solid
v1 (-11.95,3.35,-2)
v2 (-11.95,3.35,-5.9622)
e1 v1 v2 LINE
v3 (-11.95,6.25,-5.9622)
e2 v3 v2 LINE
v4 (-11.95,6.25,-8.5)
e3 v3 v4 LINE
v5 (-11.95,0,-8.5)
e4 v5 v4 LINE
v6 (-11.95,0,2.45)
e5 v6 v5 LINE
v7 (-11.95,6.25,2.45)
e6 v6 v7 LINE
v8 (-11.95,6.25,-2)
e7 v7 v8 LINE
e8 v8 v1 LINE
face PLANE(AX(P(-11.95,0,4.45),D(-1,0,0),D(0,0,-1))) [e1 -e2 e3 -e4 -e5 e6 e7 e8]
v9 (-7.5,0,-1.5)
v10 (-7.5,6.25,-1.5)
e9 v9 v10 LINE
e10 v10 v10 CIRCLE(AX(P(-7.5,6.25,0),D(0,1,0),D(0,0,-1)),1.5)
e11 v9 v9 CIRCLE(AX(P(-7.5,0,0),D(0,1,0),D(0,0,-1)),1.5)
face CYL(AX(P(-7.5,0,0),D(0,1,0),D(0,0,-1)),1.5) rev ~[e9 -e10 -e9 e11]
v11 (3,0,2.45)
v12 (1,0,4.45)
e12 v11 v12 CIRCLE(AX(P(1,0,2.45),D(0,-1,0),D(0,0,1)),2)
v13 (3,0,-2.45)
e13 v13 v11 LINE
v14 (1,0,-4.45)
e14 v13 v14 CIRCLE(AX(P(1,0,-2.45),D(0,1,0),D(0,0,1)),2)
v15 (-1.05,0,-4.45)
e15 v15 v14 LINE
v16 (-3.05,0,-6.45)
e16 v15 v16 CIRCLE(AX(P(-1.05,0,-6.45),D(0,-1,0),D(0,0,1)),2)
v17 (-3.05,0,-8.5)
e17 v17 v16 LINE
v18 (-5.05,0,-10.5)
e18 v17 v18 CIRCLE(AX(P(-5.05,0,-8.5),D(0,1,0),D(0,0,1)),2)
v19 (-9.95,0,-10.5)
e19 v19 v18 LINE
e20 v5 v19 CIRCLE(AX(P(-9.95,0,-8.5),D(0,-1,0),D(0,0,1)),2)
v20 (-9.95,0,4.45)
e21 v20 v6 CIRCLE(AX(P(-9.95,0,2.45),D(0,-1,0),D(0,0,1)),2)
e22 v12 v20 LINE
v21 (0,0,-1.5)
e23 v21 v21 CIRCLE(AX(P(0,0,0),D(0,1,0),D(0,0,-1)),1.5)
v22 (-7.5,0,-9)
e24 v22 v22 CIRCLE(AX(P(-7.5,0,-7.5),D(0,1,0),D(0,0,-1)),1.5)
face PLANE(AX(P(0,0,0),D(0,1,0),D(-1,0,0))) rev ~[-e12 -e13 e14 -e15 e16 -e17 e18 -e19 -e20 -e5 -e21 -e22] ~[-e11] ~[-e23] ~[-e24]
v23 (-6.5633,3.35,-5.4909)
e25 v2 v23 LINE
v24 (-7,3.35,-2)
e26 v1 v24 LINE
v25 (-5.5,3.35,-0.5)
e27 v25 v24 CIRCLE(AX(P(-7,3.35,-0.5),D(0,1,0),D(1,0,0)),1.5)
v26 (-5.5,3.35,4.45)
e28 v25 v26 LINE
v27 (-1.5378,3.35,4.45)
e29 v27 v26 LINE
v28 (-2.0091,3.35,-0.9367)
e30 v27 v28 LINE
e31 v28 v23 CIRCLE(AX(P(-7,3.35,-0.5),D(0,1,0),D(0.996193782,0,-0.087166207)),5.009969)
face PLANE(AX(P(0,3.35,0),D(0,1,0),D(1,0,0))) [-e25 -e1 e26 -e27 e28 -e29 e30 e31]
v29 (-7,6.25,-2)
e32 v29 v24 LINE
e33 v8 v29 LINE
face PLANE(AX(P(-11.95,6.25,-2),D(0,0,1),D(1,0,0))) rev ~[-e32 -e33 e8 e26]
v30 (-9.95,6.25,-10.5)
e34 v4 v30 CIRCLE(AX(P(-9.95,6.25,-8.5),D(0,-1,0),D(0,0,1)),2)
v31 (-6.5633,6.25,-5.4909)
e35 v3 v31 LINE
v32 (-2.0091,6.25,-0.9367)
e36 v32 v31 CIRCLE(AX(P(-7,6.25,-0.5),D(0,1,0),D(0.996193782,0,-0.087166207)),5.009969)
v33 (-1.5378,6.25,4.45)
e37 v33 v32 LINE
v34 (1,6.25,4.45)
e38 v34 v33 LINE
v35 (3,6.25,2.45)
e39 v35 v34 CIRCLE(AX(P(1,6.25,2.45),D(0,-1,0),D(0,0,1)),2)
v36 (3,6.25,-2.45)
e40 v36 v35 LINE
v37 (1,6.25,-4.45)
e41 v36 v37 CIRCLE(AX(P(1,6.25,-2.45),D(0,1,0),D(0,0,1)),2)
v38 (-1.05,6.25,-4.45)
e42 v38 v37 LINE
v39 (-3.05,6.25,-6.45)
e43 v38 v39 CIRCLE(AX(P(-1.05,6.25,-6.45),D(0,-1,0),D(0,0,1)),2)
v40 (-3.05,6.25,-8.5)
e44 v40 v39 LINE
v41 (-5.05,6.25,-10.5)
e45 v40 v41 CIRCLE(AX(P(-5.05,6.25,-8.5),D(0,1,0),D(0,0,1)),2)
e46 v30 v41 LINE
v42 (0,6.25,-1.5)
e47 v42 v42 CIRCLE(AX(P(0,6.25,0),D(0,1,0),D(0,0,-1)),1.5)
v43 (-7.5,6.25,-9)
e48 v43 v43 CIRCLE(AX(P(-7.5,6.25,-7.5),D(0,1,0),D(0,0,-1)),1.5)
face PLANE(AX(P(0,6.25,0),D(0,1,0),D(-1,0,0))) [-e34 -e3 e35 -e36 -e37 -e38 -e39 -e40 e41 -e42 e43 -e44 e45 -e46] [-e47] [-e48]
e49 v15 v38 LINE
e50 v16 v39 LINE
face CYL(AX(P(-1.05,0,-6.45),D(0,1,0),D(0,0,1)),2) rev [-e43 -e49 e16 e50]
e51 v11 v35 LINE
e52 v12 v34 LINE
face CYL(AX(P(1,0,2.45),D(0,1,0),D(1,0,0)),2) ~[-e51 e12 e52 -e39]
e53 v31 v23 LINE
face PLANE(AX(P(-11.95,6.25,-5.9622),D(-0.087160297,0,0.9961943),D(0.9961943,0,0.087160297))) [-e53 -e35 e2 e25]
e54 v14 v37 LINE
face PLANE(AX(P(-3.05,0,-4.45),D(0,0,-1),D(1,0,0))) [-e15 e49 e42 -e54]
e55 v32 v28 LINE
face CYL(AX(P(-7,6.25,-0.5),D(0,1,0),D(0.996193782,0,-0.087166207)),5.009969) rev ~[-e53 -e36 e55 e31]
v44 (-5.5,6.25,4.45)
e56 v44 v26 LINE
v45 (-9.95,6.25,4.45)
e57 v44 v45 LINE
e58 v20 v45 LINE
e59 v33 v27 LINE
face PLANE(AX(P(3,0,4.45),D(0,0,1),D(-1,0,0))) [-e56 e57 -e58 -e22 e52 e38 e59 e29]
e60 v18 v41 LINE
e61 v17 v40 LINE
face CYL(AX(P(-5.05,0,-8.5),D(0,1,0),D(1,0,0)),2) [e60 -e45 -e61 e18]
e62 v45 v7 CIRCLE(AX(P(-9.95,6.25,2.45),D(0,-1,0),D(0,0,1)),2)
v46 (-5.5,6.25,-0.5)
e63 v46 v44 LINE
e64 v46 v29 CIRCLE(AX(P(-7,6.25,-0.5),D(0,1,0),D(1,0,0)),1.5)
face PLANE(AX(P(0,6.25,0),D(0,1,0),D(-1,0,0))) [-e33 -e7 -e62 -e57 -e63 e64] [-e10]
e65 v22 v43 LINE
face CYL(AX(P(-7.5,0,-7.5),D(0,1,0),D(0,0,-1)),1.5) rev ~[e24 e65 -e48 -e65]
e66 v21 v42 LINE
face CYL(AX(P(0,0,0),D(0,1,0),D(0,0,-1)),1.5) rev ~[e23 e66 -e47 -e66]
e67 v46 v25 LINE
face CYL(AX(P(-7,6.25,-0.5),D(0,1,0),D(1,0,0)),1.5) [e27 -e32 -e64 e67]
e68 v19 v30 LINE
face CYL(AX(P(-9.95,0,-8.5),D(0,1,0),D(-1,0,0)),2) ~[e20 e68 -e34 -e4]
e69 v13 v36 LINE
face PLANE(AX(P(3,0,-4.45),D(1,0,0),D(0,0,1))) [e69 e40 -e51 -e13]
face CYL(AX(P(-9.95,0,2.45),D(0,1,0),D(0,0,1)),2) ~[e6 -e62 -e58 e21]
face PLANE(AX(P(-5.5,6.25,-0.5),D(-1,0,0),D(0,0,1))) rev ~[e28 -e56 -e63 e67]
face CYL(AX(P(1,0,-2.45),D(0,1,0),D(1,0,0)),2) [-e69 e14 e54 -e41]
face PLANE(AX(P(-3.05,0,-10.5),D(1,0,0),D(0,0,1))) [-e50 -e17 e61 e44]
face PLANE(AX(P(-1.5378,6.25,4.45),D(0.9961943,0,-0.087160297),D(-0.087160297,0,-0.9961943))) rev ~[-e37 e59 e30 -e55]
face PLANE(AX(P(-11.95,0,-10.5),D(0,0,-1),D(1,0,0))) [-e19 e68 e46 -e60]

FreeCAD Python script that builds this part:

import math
import FreeCAD as App
import Part
import Sketcher

V = App.Vector
Q = App.Units.Quantity


def edges_at(feature, points):
    """Names of the edges that pass closest to the given points."""
    edges = feature.Shape.Edges
    near = lambda p: min(range(len(edges)), key=lambda i: edges[i].distToShape(Part.Vertex(*p))[0])
    return sorted({f"Edge{near(p) + 1}" for p in points})


def add_polygon(sketch, points):
    """Adds a closed chain of lines whose ends are joined by coincident constraints."""
    first, n = sketch.GeometryCount, len(points)
    for a, b in zip(points, points[1:] + points[:1]):
        sketch.addGeometry(Part.LineSegment(App.Vector(*a, 0), App.Vector(*b, 0)), False)
    for i in range(n):
        sketch.addConstraint(Sketcher.Constraint("Coincident", first + i, 2, first + (i + 1) % n, 1))

doc = App.newDocument("Part")
params = doc.addObject("Spreadsheet::Sheet", "Params")
for row, (alias, value) in enumerate([
    ("sketch1_width", "8.9 mm"),
    ("sketch1_width2", "6.05 mm"),
    ("pad1_length", "6.25 mm"),
    ("sketch2_diameter", "3 mm"),
    ("hole_diameter", "3 mm"),
    ("sketch3_radius", "1.5 mm"),
    ("sketch3_radius2", "5.01 mm"),
    ("sketch3_width", "4.95 mm"),
    ("pocket1_length", "2.9 mm"),
    ("fillet_radius", "2 mm"),
], start=1):
    params.set(f"A{row}", alias)
    params.set(f"B{row}", "=" + value)
    params.setAlias(f"B{row}", alias)

body = doc.addObject("PartDesign::Body", "Body")

sketch1 = doc.addObject("Sketcher::SketchObject", "Sketch")
body.addObject(sketch1)
sketch1.AttachmentSupport = (doc.XZ_Plane, [""])
sketch1.MapMode = "FlatFace"
add_polygon(sketch1, [(3, 4.45), (3, -4.45), (-3.05, -4.45), (-3.05, -10.5), (-11.95, -10.5), (-11.95, 4.45)])
sketch1.addConstraint([
    Sketcher.Constraint("Vertical", 0),
    Sketcher.Constraint("Horizontal", 1),
    Sketcher.Constraint("Vertical", 2),
    Sketcher.Constraint("Horizontal", 3),
    Sketcher.Constraint("Vertical", 4),
    Sketcher.Constraint("Horizontal", 5),
    Sketcher.Constraint("Equal", 3, 0),
    Sketcher.Constraint("Equal", 1, 2),
    Sketcher.Constraint("DistanceX", 3, 2, 3, 1, 8.9),
    Sketcher.Constraint("DistanceX", -1, 1, 0, 2, 3.0),
    Sketcher.Constraint("DistanceX", 1, 2, 1, 1, 6.05),
    Sketcher.Constraint("DistanceY", 2, 2, -1, 1, 10.5),
])
sketch1.setExpression("Constraints[14]", "Params.sketch1_width")
sketch1.setExpression("Constraints[16]", "Params.sketch1_width2")
pad1 = doc.addObject("PartDesign::Pad", "Pad")
body.addObject(pad1)
pad1.Profile = sketch1
pad1.setExpression("Length", "Params.pad1_length")
pad1.Reversed = True

sketch2 = doc.addObject("Sketcher::SketchObject", "Sketch001")
body.addObject(sketch2)
sketch2.AttachmentSupport = (doc.XZ_Plane, [""])
sketch2.MapMode = "FlatFace"
sketch2.addGeometry([
    Part.Circle(V(0, 0, 0), V(0, 0, 1), 1.5),
    Part.Circle(V(-7.5, 0, 0), V(0, 0, 1), 1.5),
    Part.Circle(V(-7.5, -7.5, 0), V(0, 0, 1), 1.5),
], False)
sketch2.addConstraint([
    Sketcher.Constraint("Coincident", 0, 3, -1, 1),
    Sketcher.Constraint("Equal", 0, 1),
    Sketcher.Constraint("Equal", 1, 2),
    Sketcher.Constraint("PointOnObject", 1, 3, -1),
    Sketcher.Constraint("Vertical", 1, 3, 2, 3),
    Sketcher.Constraint("Diameter", 0, 3.0),
    Sketcher.Constraint("DistanceX", 1, 3, -1, 1, 7.5),
    Sketcher.Constraint("DistanceY", 2, 3, -1, 1, 7.5),
])
sketch2.setExpression("Constraints[5]", "Params.sketch2_diameter")
doc.recompute()
hole = doc.addObject("PartDesign::Hole", "Hole")
body.addObject(hole)
hole.Profile = sketch2
hole.ThreadType = "None"
hole.setExpression("Diameter", "Params.hole_diameter")
hole.DepthType = "ThroughAll"

sketch3 = doc.addObject("Sketcher::SketchObject", "Sketch002")
body.addObject(sketch3)
sketch3.AttachmentSupport = (doc.XZ_Plane, [""])
sketch3.MapMode = "FlatFace"
sketch3.AttachmentOffset = App.Placement(V(0, 0, -6.25), App.Rotation())
sketch3.addGeometry([
    Part.LineSegment(V(-11.95, -2, 0), V(-7, -2, 0)),
    Part.ArcOfCircle(Part.Circle(V(-7, -0.5, 0), V(0, 0, 1), 1.5), math.radians(-90), math.radians(0)),
    Part.LineSegment(V(-5.5, -0.5, 0), V(-5.5, 4.45, 0)),
    Part.LineSegment(V(-5.5, 4.45, 0), V(-1.5378, 4.45, 0)),
    Part.LineSegment(V(-1.5378, 4.45, 0), V(-2.0091, -0.9367, 0)),
    Part.ArcOfCircle(Part.Circle(V(-7, -0.5, 0), V(0, 0, 1), 5.009969), math.radians(-84.999398), math.radians(-5.000602)),
    Part.LineSegment(V(-6.5633, -5.4909, 0), V(-11.95, -5.9622, 0)),
    Part.LineSegment(V(-11.95, -5.9622, 0), V(-11.95, -2, 0)),
], False)
sketch3.addConstraint([
    Sketcher.Constraint("Tangent", 0, 2, 1, 1),
    Sketcher.Constraint("Tangent", 1, 2, 2, 1),
    Sketcher.Constraint("Coincident", 2, 2, 3, 1),
    Sketcher.Constraint("Coincident", 3, 2, 4, 1),
    Sketcher.Constraint("Tangent", 4, 2, 5, 2),
    Sketcher.Constraint("Tangent", 5, 1, 6, 1),
    Sketcher.Constraint("Coincident", 6, 2, 7, 1),
    Sketcher.Constraint("Coincident", 7, 2, 0, 1),
    Sketcher.Constraint("Horizontal", 0),
    Sketcher.Constraint("Vertical", 2),
    Sketcher.Constraint("Horizontal", 3),
    Sketcher.Constraint("Vertical", 7),
    Sketcher.Constraint("Coincident", 5, 3, 1, 3),
    Sketcher.Constraint("Equal", 0, 2),
    Sketcher.Constraint("Equal", 3, 7),
    Sketcher.Constraint("Radius", 1, 1.5),
    Sketcher.Constraint("Radius", 5, 5.01),
    Sketcher.Constraint("DistanceY", 0, 2, -1, 1, 2.0),
    Sketcher.Constraint("Angle", 4, Q("-95.0003 deg")),
    Sketcher.Constraint("DistanceX", 1, 3, -1, 1, 7.0),
    Sketcher.Constraint("DistanceX", 0, 1, 0, 2, 4.95),
])
sketch3.setExpression("Constraints[15]", "Params.sketch3_radius")
sketch3.setExpression("Constraints[16]", "Params.sketch3_radius2")
sketch3.setExpression("Constraints[20]", "Params.sketch3_width")
pocket1 = doc.addObject("PartDesign::Pocket", "Pocket")
body.addObject(pocket1)
pocket1.Profile = sketch3
pocket1.setExpression("Length", "Params.pocket1_length")
pocket1.Reversed = True
doc.recompute()

fillet = doc.addObject("PartDesign::Fillet", "Fillet")
body.addObject(fillet)
fillet.Base = (pocket1, edges_at(pocket1, [
    (-3.05, 3.125, -4.45),
    (-11.95, 3.125, 4.45),
    (-3.05, 3.125, -10.5),
    (-11.95, 3.125, -10.5),
    (3, 3.125, 4.45),
    (3, 3.125, -4.45),
]))
fillet.setExpression("Radius", "Params.fillet_radius")

doc.recompute()
